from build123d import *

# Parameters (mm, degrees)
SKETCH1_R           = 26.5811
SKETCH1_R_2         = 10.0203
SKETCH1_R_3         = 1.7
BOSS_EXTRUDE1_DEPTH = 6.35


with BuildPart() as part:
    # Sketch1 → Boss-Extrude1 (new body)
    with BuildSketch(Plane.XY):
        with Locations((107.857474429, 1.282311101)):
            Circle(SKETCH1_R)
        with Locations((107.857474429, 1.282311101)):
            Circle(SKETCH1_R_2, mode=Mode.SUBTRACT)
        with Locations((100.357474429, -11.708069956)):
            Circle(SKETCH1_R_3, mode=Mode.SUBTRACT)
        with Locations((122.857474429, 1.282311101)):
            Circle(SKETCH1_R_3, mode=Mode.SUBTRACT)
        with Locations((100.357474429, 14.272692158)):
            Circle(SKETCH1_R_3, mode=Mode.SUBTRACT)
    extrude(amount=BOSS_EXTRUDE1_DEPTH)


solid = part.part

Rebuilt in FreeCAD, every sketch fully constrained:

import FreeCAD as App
import Part
import Sketcher

V = App.Vector
Q = App.Units.Quantity

doc = App.newDocument("Part")
body = doc.addObject("PartDesign::Body", "Body")

# Sketch on XY plane
sketch1 = body.newObject("Sketcher::SketchObject", "Sketch")
sketch1.AttachmentSupport = (doc.getObject("XY_Plane"), [""])
sketch1.MapMode = "FlatFace"
sketch1.addGeometry(Part.Circle(V(107.9, 1.3, 0), V(0, 0, 1), 26.6), False)
sketch1.addGeometry(Part.Circle(V(100.4, -11.7, 0), V(0, 0, 1), 1.7), False)
sketch1.addGeometry(Part.Circle(V(107.9, 1.3, 0), V(0, 0, 1), 10), False)
sketch1.addGeometry(Part.Circle(V(122.9, 1.3, 0), V(0, 0, 1), 1.7), False)
sketch1.addGeometry(Part.Circle(V(100.4, 14.3, 0), V(0, 0, 1), 1.7), False)
sketch1.addConstraint(Sketcher.Constraint("Coincident", 2, 3, 0, 3))
sketch1.addConstraint(Sketcher.Constraint("Equal", 1, 3))
sketch1.addConstraint(Sketcher.Constraint("Equal", 3, 4))
sketch1.addConstraint(Sketcher.Constraint("Horizontal", 2, 3, 3, 3))
sketch1.addConstraint(Sketcher.Constraint("Vertical", 1, 3, 4, 3))
sketch1.addConstraint(Sketcher.Constraint("Diameter", 0, Q("2.093 in")))
sketch1.addConstraint(Sketcher.Constraint("Diameter", 2, Q("0.789 in")))
sketch1.addConstraint(Sketcher.Constraint("Diameter", 1, 3.4))
sketch1.addConstraint(Sketcher.Constraint("DistanceX", 1, 3, 0, 3, 7.5))
sketch1.addConstraint(Sketcher.Constraint("DistanceX", 0, 3, 3, 3, 15.0))
sketch1.addConstraint(Sketcher.Constraint("DistanceY", -1, 1, 0, 3, 1.282311))
sketch1.addConstraint(Sketcher.Constraint("DistanceY", 1, 3, -1, 1, 11.70807))
sketch1.addConstraint(Sketcher.Constraint("DistanceY", 0, 3, 4, 3, 12.990381))
sketch1.addConstraint(Sketcher.Constraint("DistanceX", -1, 1, 0, 3, 107.857474))
pad1 = body.newObject("PartDesign::Pad", "Pad")
pad1.Profile = sketch1
pad1.Length = Q("0.25 in")

doc.recompute()
